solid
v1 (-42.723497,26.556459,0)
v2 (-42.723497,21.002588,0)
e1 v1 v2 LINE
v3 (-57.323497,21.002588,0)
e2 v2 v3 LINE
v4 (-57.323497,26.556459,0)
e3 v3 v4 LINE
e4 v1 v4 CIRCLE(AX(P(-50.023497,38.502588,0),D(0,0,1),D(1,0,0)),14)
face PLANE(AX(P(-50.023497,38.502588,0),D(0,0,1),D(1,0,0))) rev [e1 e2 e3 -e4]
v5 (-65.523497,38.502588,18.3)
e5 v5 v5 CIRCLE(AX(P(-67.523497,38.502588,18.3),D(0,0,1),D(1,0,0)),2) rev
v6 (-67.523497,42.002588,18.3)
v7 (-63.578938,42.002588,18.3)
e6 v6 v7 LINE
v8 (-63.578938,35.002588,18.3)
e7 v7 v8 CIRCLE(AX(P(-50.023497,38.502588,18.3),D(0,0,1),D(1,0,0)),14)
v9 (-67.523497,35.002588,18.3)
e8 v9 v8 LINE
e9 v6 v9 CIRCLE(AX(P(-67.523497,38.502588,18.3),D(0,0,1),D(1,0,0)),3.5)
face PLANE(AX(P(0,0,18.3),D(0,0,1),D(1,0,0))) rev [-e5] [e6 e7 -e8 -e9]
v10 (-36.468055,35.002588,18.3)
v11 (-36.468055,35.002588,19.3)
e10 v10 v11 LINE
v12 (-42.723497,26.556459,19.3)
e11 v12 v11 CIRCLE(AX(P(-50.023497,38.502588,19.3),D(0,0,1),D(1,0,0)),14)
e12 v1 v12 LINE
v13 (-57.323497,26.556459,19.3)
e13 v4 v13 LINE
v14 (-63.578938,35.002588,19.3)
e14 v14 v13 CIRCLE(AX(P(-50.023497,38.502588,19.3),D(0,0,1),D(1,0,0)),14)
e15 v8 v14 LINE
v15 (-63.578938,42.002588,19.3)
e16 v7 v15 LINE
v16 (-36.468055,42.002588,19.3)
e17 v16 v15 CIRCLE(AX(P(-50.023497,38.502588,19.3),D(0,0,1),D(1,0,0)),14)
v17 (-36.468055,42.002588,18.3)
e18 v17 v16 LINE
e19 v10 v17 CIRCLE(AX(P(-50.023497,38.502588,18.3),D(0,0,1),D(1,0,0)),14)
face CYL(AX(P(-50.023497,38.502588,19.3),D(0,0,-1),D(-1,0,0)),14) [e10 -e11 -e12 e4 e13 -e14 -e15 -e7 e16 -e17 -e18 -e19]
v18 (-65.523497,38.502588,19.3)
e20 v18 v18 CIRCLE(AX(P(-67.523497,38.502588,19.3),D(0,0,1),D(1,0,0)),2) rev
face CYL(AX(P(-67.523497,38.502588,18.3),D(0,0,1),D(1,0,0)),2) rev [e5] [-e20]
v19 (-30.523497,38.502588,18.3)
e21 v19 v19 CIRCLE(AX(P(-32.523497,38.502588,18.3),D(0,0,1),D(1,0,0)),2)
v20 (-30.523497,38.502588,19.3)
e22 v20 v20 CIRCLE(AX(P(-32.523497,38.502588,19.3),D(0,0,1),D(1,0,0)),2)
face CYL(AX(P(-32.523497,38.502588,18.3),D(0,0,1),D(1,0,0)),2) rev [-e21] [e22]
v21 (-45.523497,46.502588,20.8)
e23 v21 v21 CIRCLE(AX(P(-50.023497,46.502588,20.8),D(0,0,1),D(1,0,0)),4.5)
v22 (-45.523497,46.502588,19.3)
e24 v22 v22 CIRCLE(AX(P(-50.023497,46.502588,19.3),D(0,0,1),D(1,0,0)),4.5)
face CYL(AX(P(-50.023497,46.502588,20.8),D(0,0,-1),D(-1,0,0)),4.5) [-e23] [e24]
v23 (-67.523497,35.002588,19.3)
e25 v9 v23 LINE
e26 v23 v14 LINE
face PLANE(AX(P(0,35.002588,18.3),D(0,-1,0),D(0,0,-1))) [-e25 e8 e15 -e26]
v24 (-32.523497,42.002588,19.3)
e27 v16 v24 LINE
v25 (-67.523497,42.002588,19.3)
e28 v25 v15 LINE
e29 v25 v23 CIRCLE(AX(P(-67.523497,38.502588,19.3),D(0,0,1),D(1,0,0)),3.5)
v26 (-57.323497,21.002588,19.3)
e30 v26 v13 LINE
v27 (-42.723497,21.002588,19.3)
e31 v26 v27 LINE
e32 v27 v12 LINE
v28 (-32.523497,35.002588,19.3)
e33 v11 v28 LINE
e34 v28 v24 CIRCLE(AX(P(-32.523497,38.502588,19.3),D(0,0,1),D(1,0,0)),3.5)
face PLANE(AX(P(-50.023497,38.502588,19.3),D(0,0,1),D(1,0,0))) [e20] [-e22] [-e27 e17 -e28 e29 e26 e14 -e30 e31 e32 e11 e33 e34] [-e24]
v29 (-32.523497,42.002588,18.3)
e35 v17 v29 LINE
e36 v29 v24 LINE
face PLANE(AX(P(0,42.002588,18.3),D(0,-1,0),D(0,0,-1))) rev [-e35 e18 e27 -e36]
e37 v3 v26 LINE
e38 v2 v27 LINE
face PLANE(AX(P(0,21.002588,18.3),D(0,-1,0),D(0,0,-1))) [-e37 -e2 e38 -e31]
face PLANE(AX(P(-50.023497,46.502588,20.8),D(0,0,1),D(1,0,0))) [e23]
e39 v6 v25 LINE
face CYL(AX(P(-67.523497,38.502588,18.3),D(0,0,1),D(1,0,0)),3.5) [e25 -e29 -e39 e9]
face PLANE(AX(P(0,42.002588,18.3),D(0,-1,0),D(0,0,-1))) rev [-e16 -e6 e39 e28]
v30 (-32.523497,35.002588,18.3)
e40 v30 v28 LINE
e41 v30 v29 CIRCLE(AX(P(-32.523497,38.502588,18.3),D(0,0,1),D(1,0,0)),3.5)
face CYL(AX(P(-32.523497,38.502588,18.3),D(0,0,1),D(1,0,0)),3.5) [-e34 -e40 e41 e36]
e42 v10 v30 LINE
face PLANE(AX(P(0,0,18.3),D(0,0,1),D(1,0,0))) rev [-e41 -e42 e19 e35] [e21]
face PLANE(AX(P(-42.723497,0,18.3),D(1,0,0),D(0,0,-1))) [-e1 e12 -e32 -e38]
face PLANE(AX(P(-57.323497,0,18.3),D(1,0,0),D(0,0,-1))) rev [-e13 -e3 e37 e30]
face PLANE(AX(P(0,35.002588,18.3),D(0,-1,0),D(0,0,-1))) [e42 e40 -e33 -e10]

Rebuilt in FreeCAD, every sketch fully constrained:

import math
import FreeCAD as App
import Part
import Sketcher
Q = App.Units.Quantity


def add_polygon(sketch, points):
    """Adds a closed chain of lines whose ends are joined by coincident constraints."""
    first, n = sketch.GeometryCount, len(points)
    for a, b in zip(points, points[1:] + points[:1]):
        sketch.addGeometry(Part.LineSegment(App.Vector(*a, 0), App.Vector(*b, 0)), False)
    for i in range(n):
        sketch.addConstraint(Sketcher.Constraint("Coincident", first + i, 2, first + (i + 1) % n, 1))

doc = App.newDocument("Part")
body = doc.addObject("PartDesign::Body", "Body")

sketch1 = doc.addObject("Sketcher::SketchObject", "Sketch")
body.addObject(sketch1)
sketch1.AttachmentSupport = (doc.XY_Plane, [""])
sketch1.MapMode = "FlatFace"
sketch1.addGeometry(Part.Circle(App.Vector(-50.023497, 38.502588, 0), App.Vector(0, 0, 1), 14), False)
sketch1.addConstraint([
    Sketcher.Constraint("Diameter", 0, Q("28 mm")),
    Sketcher.Constraint("DistanceY", -1, 1, 0, 3, Q("38.502588 mm")),
    Sketcher.Constraint("DistanceX", 0, 3, -1, 1, Q("50.023497 mm")),
])
pad1 = doc.addObject("PartDesign::Pad", "Pad")
body.addObject(pad1)
pad1.Profile = sketch1
pad1.Length = 19.3

sketch2 = doc.addObject("Sketcher::SketchObject", "Sketch001")
body.addObject(sketch2)
sketch2.AttachmentSupport = (doc.XY_Plane, [""])
sketch2.MapMode = "FlatFace"
sketch2.AttachmentOffset = App.Placement(App.Vector(0, 0, 19.3), App.Rotation())
sketch2.addGeometry([
    Part.LineSegment(App.Vector(-63.578938, 42.002588, 0), App.Vector(-67.523497, 42.002588, 0)),
    Part.ArcOfCircle(Part.Circle(App.Vector(-67.523497, 38.502588, 0), App.Vector(0, 0, 1), 3.5), math.radians(90), math.radians(270)),
    Part.LineSegment(App.Vector(-67.523497, 35.002588, 0), App.Vector(-63.578938, 35.002588, 0)),
    Part.ArcOfCircle(Part.Circle(App.Vector(-50.023497, 38.502588, 0), App.Vector(0, 0, 1), 14), math.radians(165.522488), math.radians(194.477512)),
    Part.Circle(App.Vector(-67.523497, 38.502588, 0), App.Vector(0, 0, 1), 2),
    Part.LineSegment(App.Vector(-32.523497, 42.002588, 0), App.Vector(-36.468055, 42.002588, 0)),
    Part.ArcOfCircle(Part.Circle(App.Vector(-50.023497, 38.502588, 0), App.Vector(0, 0, 1), 14), math.radians(0), math.radians(14.477512)),
    Part.ArcOfCircle(Part.Circle(App.Vector(-50.023497, 38.502588, 0), App.Vector(0, 0, 1), 14), math.radians(-14.477512), math.radians(0)),
    Part.LineSegment(App.Vector(-36.468055, 35.002588, 0), App.Vector(-32.523497, 35.002588, 0)),
    Part.ArcOfCircle(Part.Circle(App.Vector(-32.523497, 38.502588, 0), App.Vector(0, 0, 1), 3.5), math.radians(-90), math.radians(90)),
    Part.Circle(App.Vector(-32.523497, 38.502588, 0), App.Vector(0, 0, 1), 2),
    Part.ArcOfCircle(Part.Circle(App.Vector(-50.023497, 38.502588, 0), App.Vector(0, 0, 1), 14), math.radians(-121.428126), math.radians(-58.571874)),
    Part.LineSegment(App.Vector(-57.323497, 26.556459, 0), App.Vector(-57.323497, 21.002588, 0)),
    Part.LineSegment(App.Vector(-57.323497, 21.002588, 0), App.Vector(-42.723497, 21.002588, 0)),
    Part.LineSegment(App.Vector(-42.723497, 21.002588, 0), App.Vector(-42.723497, 26.556459, 0)),
], False)
sketch2.addConstraint([
    Sketcher.Constraint("Tangent", 0, 2, 1, 1),
    Sketcher.Constraint("Tangent", 1, 2, 2, 1),
    Sketcher.Constraint("Coincident", 2, 2, 3, 2),
    Sketcher.Constraint("Coincident", 3, 1, 0, 1),
    Sketcher.Constraint("Coincident", 5, 2, 6, 2),
    Sketcher.Constraint("Tangent", 6, 1, 7, 2),
    Sketcher.Constraint("Coincident", 7, 1, 8, 1),
    Sketcher.Constraint("Tangent", 8, 2, 9, 1),
    Sketcher.Constraint("Tangent", 9, 2, 5, 1),
    Sketcher.Constraint("Coincident", 11, 1, 12, 1),
    Sketcher.Constraint("Coincident", 12, 2, 13, 1),
    Sketcher.Constraint("Coincident", 13, 2, 14, 1),
    Sketcher.Constraint("Coincident", 14, 2, 11, 2),
    Sketcher.Constraint("Horizontal", 0),
    Sketcher.Constraint("Horizontal", 2),
    Sketcher.Constraint("Horizontal", 5),
    Sketcher.Constraint("Horizontal", 8),
    Sketcher.Constraint("Vertical", 12),
    Sketcher.Constraint("Horizontal", 13),
    Sketcher.Constraint("Vertical", 14),
    Sketcher.Constraint("Coincident", 4, 3, 1, 3),
    Sketcher.Constraint("Coincident", 6, 3, 3, 3),
    Sketcher.Constraint("Coincident", 10, 3, 9, 3),
    Sketcher.Constraint("Coincident", 11, 3, 3, 3),
    Sketcher.Constraint("Equal", 3, 6),
    Sketcher.Constraint("Equal", 6, 7),
    Sketcher.Constraint("Equal", 1, 9),
    Sketcher.Constraint("Equal", 4, 10),
    Sketcher.Constraint("Equal", 7, 11),
    Sketcher.Constraint("Horizontal", 1, 3, 3, 3),
    Sketcher.Constraint("Horizontal", 7, 3, 9, 3),
    Sketcher.Constraint("Horizontal", 11, 3, 6, 1),
    Sketcher.Constraint("Horizontal", 11, 1, 14, 2),
    Sketcher.Constraint("Equal", 2, 5),
    Sketcher.Constraint("Diameter", 4, Q("4 mm")),
    Sketcher.Constraint("Radius", 3, Q("14 mm")),
    Sketcher.Constraint("Radius", 1, Q("3.5 mm")),
    Sketcher.Constraint("DistanceX", 13, 1, 13, 2, Q("14.6 mm")),
    Sketcher.Constraint("DistanceX", 1, 3, 9, 3, Q("35 mm")),
    Sketcher.Constraint("DistanceY", 12, 2, 2, 2, Q("14 mm")),
    Sketcher.Constraint("DistanceY", -1, 1, 1, 3, Q("38.502588 mm")),
    Sketcher.Constraint("DistanceX", 2, 2, -1, 1, Q("63.578938 mm")),
])
pad2 = doc.addObject("PartDesign::Pad", "Pad001")
body.addObject(pad2)
pad2.Profile = sketch2
pad2.Length = 1
pad2.Reversed = True

sketch3 = doc.addObject("Sketcher::SketchObject", "Sketch002")
body.addObject(sketch3)
sketch3.AttachmentSupport = (doc.XY_Plane, [""])
sketch3.MapMode = "FlatFace"
sketch3.AttachmentOffset = App.Placement(App.Vector(0, 0, 19.3), App.Rotation())
sketch3.addGeometry(Part.Circle(App.Vector(-50.023497, 46.502588, 0), App.Vector(0, 0, 1), 4.5), False)
sketch3.addConstraint([
    Sketcher.Constraint("Diameter", 0, Q("9 mm")),
    Sketcher.Constraint("DistanceY", -1, 1, 0, 3, Q("46.502588 mm")),
    Sketcher.Constraint("DistanceX", 0, 3, -1, 1, Q("50.023497 mm")),
])
pad3 = doc.addObject("PartDesign::Pad", "Pad002")
body.addObject(pad3)
pad3.Profile = sketch3
pad3.Length = 1.5

sketch4 = doc.addObject("Sketcher::SketchObject", "Sketch003")
body.addObject(sketch4)
sketch4.AttachmentSupport = (doc.XY_Plane, [""])
sketch4.MapMode = "FlatFace"
sketch4.AttachmentOffset = App.Placement(App.Vector(0, 0, 19.3), App.Rotation())
add_polygon(sketch4, [(-57.323497, 26.556459), (-57.323497, 21.002588), (-42.723497, 21.002588), (-42.723497, 26.556459)])
sketch4.addConstraint([
    Sketcher.Constraint("Vertical", 0),
    Sketcher.Constraint("Horizontal", 1),
    Sketcher.Constraint("Vertical", 2),
    Sketcher.Constraint("Horizontal", 3),
    Sketcher.Constraint("DistanceX", 1, 1, 1, 2, Q("14.6 mm")),
    Sketcher.Constraint("DistanceY", 0, 2, 0, 1, Q("5.553871 mm")),
    Sketcher.Constraint("DistanceY", -1, 1, 0, 2, Q("21.002588 mm")),
    Sketcher.Constraint("DistanceX", 0, 2, -1, 1, Q("57.323497 mm")),
])
pad4 = doc.addObject("PartDesign::Pad", "Pad003")
body.addObject(pad4)
pad4.Profile = sketch4
pad4.Length = 19.3
pad4.Reversed = True

doc.recompute()
